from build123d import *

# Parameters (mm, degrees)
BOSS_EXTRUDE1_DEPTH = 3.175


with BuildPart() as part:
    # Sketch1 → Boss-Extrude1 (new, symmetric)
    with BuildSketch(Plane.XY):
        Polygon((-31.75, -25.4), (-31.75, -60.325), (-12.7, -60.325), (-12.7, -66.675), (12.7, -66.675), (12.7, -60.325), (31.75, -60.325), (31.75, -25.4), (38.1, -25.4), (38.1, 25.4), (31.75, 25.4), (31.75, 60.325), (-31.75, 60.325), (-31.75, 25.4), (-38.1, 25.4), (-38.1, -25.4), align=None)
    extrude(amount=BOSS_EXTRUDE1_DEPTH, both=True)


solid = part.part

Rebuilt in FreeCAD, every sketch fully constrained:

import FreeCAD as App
import Part
import Sketcher
from FreeCAD import Vector
Q = App.Units.Quantity

doc = App.newDocument("Part")
params = doc.addObject("Spreadsheet::Sheet", "Params")
for row, (alias, value) in enumerate([
    ("sketch1_width", "1 in"),
    ("sketch1_height", "2 in"),
    ("sketch1_width2", "2.5 in"),
    ("sketch1_height2", "1.375 in"),
    ("pad1_length", "0.25 in"),
], start=1):
    params.set(f"A{row}", alias)
    params.set(f"B{row}", "=" + value)
    params.setAlias(f"B{row}", alias)

body = doc.addObject("PartDesign::Body", "Body")

sketch1 = body.newObject("Sketcher::SketchObject", "Sketch")
sketch1.AttachmentSupport = (doc.getObject("XY_Plane"), [""])
sketch1.MapMode = "FlatFace"
sketch1.addGeometry(Part.LineSegment(Vector(-32, -25, 0), Vector(-32, -60, 0)), False)
sketch1.addGeometry(Part.LineSegment(Vector(-32, -60, 0), Vector(-13, -60, 0)), False)
sketch1.addGeometry(Part.LineSegment(Vector(-13, -60, 0), Vector(-13, -67, 0)), False)
sketch1.addGeometry(Part.LineSegment(Vector(-13, -67, 0), Vector(13, -67, 0)), False)
sketch1.addGeometry(Part.LineSegment(Vector(13, -67, 0), Vector(13, -60, 0)), False)
sketch1.addGeometry(Part.LineSegment(Vector(13, -60, 0), Vector(32, -60, 0)), False)
sketch1.addGeometry(Part.LineSegment(Vector(32, -60, 0), Vector(32, -25, 0)), False)
sketch1.addGeometry(Part.LineSegment(Vector(32, -25, 0), Vector(38, -25, 0)), False)
sketch1.addGeometry(Part.LineSegment(Vector(38, -25, 0), Vector(38, 25, 0)), False)
sketch1.addGeometry(Part.LineSegment(Vector(38, 25, 0), Vector(32, 25, 0)), False)
sketch1.addGeometry(Part.LineSegment(Vector(32, 25, 0), Vector(32, 60, 0)), False)
sketch1.addGeometry(Part.LineSegment(Vector(32, 60, 0), Vector(-32, 60, 0)), False)
sketch1.addGeometry(Part.LineSegment(Vector(-32, 60, 0), Vector(-32, 25, 0)), False)
sketch1.addGeometry(Part.LineSegment(Vector(-32, 25, 0), Vector(-38, 25, 0)), False)
sketch1.addGeometry(Part.LineSegment(Vector(-38, 25, 0), Vector(-38, -25, 0)), False)
sketch1.addGeometry(Part.LineSegment(Vector(-38, -25, 0), Vector(-32, -25, 0)), False)
sketch1.addConstraint(Sketcher.Constraint("Coincident", 0, 2, 1, 1))
sketch1.addConstraint(Sketcher.Constraint("Coincident", 1, 2, 2, 1))
sketch1.addConstraint(Sketcher.Constraint("Coincident", 2, 2, 3, 1))
sketch1.addConstraint(Sketcher.Constraint("Coincident", 3, 2, 4, 1))
sketch1.addConstraint(Sketcher.Constraint("Coincident", 4, 2, 5, 1))
sketch1.addConstraint(Sketcher.Constraint("Coincident", 5, 2, 6, 1))
sketch1.addConstraint(Sketcher.Constraint("Coincident", 6, 2, 7, 1))
sketch1.addConstraint(Sketcher.Constraint("Coincident", 7, 2, 8, 1))
sketch1.addConstraint(Sketcher.Constraint("Coincident", 8, 2, 9, 1))
sketch1.addConstraint(Sketcher.Constraint("Coincident", 9, 2, 10, 1))
sketch1.addConstraint(Sketcher.Constraint("Coincident", 10, 2, 11, 1))
sketch1.addConstraint(Sketcher.Constraint("Coincident", 11, 2, 12, 1))
sketch1.addConstraint(Sketcher.Constraint("Coincident", 12, 2, 13, 1))
sketch1.addConstraint(Sketcher.Constraint("Coincident", 13, 2, 14, 1))
sketch1.addConstraint(Sketcher.Constraint("Coincident", 14, 2, 15, 1))
sketch1.addConstraint(Sketcher.Constraint("Coincident", 15, 2, 0, 1))
sketch1.addConstraint(Sketcher.Constraint("Vertical", 0))
sketch1.addConstraint(Sketcher.Constraint("Horizontal", 1))
sketch1.addConstraint(Sketcher.Constraint("Vertical", 2))
sketch1.addConstraint(Sketcher.Constraint("Horizontal", 3))
sketch1.addConstraint(Sketcher.Constraint("Vertical", 4))
sketch1.addConstraint(Sketcher.Constraint("Horizontal", 5))
sketch1.addConstraint(Sketcher.Constraint("Vertical", 6))
sketch1.addConstraint(Sketcher.Constraint("Horizontal", 7))
sketch1.addConstraint(Sketcher.Constraint("Vertical", 8))
sketch1.addConstraint(Sketcher.Constraint("Horizontal", 9))
sketch1.addConstraint(Sketcher.Constraint("Vertical", 10))
sketch1.addConstraint(Sketcher.Constraint("Horizontal", 11))
sketch1.addConstraint(Sketcher.Constraint("Vertical", 12))
sketch1.addConstraint(Sketcher.Constraint("Horizontal", 13))
sketch1.addConstraint(Sketcher.Constraint("Vertical", 14))
sketch1.addConstraint(Sketcher.Constraint("Horizontal", 15))
sketch1.addConstraint(Sketcher.Constraint("Symmetric", 0, 2, 10, 2, -1, 1))
sketch1.addConstraint(Sketcher.Constraint("Symmetric", 5, 2, 11, 2, -1, 1))
sketch1.addConstraint(Sketcher.Constraint("Symmetric", 7, 2, 13, 2, -1, 1))
sketch1.addConstraint(Sketcher.Constraint("Symmetric", 9, 2, 12, 2, -2))
sketch1.addConstraint(Sketcher.Constraint("Horizontal", 7, 2, 14, 2))
sketch1.addConstraint(Sketcher.Constraint("Equal", 1, 5))
sketch1.addConstraint(Sketcher.Constraint("Equal", 15, 2))
sketch1.addConstraint(Sketcher.Constraint("DistanceX", 3, 1, 3, 2, Q("1 in")))
sketch1.addConstraint(Sketcher.Constraint("DistanceY", 8, 1, 8, 2, Q("2 in")))
sketch1.addConstraint(Sketcher.Constraint("DistanceX", 11, 2, 11, 1, Q("2.5 in")))
sketch1.addConstraint(Sketcher.Constraint("DistanceX", 4, 2, 7, 2, Q("1 in")))
sketch1.addConstraint(Sketcher.Constraint("DistanceY", 0, 2, 0, 1, Q("1.375 in")))
sketch1.setExpression("Constraints[39]", "Params.sketch1_width")
sketch1.setExpression("Constraints[40]", "Params.sketch1_height")
sketch1.setExpression("Constraints[41]", "Params.sketch1_width2")
sketch1.setExpression("Constraints[43]", "Params.sketch1_height2")
pad1 = body.newObject("PartDesign::Pad", "Pad")
pad1.Profile = sketch1
pad1.setExpression("Length", "Params.pad1_length")
pad1.Midplane = True

doc.recompute()
